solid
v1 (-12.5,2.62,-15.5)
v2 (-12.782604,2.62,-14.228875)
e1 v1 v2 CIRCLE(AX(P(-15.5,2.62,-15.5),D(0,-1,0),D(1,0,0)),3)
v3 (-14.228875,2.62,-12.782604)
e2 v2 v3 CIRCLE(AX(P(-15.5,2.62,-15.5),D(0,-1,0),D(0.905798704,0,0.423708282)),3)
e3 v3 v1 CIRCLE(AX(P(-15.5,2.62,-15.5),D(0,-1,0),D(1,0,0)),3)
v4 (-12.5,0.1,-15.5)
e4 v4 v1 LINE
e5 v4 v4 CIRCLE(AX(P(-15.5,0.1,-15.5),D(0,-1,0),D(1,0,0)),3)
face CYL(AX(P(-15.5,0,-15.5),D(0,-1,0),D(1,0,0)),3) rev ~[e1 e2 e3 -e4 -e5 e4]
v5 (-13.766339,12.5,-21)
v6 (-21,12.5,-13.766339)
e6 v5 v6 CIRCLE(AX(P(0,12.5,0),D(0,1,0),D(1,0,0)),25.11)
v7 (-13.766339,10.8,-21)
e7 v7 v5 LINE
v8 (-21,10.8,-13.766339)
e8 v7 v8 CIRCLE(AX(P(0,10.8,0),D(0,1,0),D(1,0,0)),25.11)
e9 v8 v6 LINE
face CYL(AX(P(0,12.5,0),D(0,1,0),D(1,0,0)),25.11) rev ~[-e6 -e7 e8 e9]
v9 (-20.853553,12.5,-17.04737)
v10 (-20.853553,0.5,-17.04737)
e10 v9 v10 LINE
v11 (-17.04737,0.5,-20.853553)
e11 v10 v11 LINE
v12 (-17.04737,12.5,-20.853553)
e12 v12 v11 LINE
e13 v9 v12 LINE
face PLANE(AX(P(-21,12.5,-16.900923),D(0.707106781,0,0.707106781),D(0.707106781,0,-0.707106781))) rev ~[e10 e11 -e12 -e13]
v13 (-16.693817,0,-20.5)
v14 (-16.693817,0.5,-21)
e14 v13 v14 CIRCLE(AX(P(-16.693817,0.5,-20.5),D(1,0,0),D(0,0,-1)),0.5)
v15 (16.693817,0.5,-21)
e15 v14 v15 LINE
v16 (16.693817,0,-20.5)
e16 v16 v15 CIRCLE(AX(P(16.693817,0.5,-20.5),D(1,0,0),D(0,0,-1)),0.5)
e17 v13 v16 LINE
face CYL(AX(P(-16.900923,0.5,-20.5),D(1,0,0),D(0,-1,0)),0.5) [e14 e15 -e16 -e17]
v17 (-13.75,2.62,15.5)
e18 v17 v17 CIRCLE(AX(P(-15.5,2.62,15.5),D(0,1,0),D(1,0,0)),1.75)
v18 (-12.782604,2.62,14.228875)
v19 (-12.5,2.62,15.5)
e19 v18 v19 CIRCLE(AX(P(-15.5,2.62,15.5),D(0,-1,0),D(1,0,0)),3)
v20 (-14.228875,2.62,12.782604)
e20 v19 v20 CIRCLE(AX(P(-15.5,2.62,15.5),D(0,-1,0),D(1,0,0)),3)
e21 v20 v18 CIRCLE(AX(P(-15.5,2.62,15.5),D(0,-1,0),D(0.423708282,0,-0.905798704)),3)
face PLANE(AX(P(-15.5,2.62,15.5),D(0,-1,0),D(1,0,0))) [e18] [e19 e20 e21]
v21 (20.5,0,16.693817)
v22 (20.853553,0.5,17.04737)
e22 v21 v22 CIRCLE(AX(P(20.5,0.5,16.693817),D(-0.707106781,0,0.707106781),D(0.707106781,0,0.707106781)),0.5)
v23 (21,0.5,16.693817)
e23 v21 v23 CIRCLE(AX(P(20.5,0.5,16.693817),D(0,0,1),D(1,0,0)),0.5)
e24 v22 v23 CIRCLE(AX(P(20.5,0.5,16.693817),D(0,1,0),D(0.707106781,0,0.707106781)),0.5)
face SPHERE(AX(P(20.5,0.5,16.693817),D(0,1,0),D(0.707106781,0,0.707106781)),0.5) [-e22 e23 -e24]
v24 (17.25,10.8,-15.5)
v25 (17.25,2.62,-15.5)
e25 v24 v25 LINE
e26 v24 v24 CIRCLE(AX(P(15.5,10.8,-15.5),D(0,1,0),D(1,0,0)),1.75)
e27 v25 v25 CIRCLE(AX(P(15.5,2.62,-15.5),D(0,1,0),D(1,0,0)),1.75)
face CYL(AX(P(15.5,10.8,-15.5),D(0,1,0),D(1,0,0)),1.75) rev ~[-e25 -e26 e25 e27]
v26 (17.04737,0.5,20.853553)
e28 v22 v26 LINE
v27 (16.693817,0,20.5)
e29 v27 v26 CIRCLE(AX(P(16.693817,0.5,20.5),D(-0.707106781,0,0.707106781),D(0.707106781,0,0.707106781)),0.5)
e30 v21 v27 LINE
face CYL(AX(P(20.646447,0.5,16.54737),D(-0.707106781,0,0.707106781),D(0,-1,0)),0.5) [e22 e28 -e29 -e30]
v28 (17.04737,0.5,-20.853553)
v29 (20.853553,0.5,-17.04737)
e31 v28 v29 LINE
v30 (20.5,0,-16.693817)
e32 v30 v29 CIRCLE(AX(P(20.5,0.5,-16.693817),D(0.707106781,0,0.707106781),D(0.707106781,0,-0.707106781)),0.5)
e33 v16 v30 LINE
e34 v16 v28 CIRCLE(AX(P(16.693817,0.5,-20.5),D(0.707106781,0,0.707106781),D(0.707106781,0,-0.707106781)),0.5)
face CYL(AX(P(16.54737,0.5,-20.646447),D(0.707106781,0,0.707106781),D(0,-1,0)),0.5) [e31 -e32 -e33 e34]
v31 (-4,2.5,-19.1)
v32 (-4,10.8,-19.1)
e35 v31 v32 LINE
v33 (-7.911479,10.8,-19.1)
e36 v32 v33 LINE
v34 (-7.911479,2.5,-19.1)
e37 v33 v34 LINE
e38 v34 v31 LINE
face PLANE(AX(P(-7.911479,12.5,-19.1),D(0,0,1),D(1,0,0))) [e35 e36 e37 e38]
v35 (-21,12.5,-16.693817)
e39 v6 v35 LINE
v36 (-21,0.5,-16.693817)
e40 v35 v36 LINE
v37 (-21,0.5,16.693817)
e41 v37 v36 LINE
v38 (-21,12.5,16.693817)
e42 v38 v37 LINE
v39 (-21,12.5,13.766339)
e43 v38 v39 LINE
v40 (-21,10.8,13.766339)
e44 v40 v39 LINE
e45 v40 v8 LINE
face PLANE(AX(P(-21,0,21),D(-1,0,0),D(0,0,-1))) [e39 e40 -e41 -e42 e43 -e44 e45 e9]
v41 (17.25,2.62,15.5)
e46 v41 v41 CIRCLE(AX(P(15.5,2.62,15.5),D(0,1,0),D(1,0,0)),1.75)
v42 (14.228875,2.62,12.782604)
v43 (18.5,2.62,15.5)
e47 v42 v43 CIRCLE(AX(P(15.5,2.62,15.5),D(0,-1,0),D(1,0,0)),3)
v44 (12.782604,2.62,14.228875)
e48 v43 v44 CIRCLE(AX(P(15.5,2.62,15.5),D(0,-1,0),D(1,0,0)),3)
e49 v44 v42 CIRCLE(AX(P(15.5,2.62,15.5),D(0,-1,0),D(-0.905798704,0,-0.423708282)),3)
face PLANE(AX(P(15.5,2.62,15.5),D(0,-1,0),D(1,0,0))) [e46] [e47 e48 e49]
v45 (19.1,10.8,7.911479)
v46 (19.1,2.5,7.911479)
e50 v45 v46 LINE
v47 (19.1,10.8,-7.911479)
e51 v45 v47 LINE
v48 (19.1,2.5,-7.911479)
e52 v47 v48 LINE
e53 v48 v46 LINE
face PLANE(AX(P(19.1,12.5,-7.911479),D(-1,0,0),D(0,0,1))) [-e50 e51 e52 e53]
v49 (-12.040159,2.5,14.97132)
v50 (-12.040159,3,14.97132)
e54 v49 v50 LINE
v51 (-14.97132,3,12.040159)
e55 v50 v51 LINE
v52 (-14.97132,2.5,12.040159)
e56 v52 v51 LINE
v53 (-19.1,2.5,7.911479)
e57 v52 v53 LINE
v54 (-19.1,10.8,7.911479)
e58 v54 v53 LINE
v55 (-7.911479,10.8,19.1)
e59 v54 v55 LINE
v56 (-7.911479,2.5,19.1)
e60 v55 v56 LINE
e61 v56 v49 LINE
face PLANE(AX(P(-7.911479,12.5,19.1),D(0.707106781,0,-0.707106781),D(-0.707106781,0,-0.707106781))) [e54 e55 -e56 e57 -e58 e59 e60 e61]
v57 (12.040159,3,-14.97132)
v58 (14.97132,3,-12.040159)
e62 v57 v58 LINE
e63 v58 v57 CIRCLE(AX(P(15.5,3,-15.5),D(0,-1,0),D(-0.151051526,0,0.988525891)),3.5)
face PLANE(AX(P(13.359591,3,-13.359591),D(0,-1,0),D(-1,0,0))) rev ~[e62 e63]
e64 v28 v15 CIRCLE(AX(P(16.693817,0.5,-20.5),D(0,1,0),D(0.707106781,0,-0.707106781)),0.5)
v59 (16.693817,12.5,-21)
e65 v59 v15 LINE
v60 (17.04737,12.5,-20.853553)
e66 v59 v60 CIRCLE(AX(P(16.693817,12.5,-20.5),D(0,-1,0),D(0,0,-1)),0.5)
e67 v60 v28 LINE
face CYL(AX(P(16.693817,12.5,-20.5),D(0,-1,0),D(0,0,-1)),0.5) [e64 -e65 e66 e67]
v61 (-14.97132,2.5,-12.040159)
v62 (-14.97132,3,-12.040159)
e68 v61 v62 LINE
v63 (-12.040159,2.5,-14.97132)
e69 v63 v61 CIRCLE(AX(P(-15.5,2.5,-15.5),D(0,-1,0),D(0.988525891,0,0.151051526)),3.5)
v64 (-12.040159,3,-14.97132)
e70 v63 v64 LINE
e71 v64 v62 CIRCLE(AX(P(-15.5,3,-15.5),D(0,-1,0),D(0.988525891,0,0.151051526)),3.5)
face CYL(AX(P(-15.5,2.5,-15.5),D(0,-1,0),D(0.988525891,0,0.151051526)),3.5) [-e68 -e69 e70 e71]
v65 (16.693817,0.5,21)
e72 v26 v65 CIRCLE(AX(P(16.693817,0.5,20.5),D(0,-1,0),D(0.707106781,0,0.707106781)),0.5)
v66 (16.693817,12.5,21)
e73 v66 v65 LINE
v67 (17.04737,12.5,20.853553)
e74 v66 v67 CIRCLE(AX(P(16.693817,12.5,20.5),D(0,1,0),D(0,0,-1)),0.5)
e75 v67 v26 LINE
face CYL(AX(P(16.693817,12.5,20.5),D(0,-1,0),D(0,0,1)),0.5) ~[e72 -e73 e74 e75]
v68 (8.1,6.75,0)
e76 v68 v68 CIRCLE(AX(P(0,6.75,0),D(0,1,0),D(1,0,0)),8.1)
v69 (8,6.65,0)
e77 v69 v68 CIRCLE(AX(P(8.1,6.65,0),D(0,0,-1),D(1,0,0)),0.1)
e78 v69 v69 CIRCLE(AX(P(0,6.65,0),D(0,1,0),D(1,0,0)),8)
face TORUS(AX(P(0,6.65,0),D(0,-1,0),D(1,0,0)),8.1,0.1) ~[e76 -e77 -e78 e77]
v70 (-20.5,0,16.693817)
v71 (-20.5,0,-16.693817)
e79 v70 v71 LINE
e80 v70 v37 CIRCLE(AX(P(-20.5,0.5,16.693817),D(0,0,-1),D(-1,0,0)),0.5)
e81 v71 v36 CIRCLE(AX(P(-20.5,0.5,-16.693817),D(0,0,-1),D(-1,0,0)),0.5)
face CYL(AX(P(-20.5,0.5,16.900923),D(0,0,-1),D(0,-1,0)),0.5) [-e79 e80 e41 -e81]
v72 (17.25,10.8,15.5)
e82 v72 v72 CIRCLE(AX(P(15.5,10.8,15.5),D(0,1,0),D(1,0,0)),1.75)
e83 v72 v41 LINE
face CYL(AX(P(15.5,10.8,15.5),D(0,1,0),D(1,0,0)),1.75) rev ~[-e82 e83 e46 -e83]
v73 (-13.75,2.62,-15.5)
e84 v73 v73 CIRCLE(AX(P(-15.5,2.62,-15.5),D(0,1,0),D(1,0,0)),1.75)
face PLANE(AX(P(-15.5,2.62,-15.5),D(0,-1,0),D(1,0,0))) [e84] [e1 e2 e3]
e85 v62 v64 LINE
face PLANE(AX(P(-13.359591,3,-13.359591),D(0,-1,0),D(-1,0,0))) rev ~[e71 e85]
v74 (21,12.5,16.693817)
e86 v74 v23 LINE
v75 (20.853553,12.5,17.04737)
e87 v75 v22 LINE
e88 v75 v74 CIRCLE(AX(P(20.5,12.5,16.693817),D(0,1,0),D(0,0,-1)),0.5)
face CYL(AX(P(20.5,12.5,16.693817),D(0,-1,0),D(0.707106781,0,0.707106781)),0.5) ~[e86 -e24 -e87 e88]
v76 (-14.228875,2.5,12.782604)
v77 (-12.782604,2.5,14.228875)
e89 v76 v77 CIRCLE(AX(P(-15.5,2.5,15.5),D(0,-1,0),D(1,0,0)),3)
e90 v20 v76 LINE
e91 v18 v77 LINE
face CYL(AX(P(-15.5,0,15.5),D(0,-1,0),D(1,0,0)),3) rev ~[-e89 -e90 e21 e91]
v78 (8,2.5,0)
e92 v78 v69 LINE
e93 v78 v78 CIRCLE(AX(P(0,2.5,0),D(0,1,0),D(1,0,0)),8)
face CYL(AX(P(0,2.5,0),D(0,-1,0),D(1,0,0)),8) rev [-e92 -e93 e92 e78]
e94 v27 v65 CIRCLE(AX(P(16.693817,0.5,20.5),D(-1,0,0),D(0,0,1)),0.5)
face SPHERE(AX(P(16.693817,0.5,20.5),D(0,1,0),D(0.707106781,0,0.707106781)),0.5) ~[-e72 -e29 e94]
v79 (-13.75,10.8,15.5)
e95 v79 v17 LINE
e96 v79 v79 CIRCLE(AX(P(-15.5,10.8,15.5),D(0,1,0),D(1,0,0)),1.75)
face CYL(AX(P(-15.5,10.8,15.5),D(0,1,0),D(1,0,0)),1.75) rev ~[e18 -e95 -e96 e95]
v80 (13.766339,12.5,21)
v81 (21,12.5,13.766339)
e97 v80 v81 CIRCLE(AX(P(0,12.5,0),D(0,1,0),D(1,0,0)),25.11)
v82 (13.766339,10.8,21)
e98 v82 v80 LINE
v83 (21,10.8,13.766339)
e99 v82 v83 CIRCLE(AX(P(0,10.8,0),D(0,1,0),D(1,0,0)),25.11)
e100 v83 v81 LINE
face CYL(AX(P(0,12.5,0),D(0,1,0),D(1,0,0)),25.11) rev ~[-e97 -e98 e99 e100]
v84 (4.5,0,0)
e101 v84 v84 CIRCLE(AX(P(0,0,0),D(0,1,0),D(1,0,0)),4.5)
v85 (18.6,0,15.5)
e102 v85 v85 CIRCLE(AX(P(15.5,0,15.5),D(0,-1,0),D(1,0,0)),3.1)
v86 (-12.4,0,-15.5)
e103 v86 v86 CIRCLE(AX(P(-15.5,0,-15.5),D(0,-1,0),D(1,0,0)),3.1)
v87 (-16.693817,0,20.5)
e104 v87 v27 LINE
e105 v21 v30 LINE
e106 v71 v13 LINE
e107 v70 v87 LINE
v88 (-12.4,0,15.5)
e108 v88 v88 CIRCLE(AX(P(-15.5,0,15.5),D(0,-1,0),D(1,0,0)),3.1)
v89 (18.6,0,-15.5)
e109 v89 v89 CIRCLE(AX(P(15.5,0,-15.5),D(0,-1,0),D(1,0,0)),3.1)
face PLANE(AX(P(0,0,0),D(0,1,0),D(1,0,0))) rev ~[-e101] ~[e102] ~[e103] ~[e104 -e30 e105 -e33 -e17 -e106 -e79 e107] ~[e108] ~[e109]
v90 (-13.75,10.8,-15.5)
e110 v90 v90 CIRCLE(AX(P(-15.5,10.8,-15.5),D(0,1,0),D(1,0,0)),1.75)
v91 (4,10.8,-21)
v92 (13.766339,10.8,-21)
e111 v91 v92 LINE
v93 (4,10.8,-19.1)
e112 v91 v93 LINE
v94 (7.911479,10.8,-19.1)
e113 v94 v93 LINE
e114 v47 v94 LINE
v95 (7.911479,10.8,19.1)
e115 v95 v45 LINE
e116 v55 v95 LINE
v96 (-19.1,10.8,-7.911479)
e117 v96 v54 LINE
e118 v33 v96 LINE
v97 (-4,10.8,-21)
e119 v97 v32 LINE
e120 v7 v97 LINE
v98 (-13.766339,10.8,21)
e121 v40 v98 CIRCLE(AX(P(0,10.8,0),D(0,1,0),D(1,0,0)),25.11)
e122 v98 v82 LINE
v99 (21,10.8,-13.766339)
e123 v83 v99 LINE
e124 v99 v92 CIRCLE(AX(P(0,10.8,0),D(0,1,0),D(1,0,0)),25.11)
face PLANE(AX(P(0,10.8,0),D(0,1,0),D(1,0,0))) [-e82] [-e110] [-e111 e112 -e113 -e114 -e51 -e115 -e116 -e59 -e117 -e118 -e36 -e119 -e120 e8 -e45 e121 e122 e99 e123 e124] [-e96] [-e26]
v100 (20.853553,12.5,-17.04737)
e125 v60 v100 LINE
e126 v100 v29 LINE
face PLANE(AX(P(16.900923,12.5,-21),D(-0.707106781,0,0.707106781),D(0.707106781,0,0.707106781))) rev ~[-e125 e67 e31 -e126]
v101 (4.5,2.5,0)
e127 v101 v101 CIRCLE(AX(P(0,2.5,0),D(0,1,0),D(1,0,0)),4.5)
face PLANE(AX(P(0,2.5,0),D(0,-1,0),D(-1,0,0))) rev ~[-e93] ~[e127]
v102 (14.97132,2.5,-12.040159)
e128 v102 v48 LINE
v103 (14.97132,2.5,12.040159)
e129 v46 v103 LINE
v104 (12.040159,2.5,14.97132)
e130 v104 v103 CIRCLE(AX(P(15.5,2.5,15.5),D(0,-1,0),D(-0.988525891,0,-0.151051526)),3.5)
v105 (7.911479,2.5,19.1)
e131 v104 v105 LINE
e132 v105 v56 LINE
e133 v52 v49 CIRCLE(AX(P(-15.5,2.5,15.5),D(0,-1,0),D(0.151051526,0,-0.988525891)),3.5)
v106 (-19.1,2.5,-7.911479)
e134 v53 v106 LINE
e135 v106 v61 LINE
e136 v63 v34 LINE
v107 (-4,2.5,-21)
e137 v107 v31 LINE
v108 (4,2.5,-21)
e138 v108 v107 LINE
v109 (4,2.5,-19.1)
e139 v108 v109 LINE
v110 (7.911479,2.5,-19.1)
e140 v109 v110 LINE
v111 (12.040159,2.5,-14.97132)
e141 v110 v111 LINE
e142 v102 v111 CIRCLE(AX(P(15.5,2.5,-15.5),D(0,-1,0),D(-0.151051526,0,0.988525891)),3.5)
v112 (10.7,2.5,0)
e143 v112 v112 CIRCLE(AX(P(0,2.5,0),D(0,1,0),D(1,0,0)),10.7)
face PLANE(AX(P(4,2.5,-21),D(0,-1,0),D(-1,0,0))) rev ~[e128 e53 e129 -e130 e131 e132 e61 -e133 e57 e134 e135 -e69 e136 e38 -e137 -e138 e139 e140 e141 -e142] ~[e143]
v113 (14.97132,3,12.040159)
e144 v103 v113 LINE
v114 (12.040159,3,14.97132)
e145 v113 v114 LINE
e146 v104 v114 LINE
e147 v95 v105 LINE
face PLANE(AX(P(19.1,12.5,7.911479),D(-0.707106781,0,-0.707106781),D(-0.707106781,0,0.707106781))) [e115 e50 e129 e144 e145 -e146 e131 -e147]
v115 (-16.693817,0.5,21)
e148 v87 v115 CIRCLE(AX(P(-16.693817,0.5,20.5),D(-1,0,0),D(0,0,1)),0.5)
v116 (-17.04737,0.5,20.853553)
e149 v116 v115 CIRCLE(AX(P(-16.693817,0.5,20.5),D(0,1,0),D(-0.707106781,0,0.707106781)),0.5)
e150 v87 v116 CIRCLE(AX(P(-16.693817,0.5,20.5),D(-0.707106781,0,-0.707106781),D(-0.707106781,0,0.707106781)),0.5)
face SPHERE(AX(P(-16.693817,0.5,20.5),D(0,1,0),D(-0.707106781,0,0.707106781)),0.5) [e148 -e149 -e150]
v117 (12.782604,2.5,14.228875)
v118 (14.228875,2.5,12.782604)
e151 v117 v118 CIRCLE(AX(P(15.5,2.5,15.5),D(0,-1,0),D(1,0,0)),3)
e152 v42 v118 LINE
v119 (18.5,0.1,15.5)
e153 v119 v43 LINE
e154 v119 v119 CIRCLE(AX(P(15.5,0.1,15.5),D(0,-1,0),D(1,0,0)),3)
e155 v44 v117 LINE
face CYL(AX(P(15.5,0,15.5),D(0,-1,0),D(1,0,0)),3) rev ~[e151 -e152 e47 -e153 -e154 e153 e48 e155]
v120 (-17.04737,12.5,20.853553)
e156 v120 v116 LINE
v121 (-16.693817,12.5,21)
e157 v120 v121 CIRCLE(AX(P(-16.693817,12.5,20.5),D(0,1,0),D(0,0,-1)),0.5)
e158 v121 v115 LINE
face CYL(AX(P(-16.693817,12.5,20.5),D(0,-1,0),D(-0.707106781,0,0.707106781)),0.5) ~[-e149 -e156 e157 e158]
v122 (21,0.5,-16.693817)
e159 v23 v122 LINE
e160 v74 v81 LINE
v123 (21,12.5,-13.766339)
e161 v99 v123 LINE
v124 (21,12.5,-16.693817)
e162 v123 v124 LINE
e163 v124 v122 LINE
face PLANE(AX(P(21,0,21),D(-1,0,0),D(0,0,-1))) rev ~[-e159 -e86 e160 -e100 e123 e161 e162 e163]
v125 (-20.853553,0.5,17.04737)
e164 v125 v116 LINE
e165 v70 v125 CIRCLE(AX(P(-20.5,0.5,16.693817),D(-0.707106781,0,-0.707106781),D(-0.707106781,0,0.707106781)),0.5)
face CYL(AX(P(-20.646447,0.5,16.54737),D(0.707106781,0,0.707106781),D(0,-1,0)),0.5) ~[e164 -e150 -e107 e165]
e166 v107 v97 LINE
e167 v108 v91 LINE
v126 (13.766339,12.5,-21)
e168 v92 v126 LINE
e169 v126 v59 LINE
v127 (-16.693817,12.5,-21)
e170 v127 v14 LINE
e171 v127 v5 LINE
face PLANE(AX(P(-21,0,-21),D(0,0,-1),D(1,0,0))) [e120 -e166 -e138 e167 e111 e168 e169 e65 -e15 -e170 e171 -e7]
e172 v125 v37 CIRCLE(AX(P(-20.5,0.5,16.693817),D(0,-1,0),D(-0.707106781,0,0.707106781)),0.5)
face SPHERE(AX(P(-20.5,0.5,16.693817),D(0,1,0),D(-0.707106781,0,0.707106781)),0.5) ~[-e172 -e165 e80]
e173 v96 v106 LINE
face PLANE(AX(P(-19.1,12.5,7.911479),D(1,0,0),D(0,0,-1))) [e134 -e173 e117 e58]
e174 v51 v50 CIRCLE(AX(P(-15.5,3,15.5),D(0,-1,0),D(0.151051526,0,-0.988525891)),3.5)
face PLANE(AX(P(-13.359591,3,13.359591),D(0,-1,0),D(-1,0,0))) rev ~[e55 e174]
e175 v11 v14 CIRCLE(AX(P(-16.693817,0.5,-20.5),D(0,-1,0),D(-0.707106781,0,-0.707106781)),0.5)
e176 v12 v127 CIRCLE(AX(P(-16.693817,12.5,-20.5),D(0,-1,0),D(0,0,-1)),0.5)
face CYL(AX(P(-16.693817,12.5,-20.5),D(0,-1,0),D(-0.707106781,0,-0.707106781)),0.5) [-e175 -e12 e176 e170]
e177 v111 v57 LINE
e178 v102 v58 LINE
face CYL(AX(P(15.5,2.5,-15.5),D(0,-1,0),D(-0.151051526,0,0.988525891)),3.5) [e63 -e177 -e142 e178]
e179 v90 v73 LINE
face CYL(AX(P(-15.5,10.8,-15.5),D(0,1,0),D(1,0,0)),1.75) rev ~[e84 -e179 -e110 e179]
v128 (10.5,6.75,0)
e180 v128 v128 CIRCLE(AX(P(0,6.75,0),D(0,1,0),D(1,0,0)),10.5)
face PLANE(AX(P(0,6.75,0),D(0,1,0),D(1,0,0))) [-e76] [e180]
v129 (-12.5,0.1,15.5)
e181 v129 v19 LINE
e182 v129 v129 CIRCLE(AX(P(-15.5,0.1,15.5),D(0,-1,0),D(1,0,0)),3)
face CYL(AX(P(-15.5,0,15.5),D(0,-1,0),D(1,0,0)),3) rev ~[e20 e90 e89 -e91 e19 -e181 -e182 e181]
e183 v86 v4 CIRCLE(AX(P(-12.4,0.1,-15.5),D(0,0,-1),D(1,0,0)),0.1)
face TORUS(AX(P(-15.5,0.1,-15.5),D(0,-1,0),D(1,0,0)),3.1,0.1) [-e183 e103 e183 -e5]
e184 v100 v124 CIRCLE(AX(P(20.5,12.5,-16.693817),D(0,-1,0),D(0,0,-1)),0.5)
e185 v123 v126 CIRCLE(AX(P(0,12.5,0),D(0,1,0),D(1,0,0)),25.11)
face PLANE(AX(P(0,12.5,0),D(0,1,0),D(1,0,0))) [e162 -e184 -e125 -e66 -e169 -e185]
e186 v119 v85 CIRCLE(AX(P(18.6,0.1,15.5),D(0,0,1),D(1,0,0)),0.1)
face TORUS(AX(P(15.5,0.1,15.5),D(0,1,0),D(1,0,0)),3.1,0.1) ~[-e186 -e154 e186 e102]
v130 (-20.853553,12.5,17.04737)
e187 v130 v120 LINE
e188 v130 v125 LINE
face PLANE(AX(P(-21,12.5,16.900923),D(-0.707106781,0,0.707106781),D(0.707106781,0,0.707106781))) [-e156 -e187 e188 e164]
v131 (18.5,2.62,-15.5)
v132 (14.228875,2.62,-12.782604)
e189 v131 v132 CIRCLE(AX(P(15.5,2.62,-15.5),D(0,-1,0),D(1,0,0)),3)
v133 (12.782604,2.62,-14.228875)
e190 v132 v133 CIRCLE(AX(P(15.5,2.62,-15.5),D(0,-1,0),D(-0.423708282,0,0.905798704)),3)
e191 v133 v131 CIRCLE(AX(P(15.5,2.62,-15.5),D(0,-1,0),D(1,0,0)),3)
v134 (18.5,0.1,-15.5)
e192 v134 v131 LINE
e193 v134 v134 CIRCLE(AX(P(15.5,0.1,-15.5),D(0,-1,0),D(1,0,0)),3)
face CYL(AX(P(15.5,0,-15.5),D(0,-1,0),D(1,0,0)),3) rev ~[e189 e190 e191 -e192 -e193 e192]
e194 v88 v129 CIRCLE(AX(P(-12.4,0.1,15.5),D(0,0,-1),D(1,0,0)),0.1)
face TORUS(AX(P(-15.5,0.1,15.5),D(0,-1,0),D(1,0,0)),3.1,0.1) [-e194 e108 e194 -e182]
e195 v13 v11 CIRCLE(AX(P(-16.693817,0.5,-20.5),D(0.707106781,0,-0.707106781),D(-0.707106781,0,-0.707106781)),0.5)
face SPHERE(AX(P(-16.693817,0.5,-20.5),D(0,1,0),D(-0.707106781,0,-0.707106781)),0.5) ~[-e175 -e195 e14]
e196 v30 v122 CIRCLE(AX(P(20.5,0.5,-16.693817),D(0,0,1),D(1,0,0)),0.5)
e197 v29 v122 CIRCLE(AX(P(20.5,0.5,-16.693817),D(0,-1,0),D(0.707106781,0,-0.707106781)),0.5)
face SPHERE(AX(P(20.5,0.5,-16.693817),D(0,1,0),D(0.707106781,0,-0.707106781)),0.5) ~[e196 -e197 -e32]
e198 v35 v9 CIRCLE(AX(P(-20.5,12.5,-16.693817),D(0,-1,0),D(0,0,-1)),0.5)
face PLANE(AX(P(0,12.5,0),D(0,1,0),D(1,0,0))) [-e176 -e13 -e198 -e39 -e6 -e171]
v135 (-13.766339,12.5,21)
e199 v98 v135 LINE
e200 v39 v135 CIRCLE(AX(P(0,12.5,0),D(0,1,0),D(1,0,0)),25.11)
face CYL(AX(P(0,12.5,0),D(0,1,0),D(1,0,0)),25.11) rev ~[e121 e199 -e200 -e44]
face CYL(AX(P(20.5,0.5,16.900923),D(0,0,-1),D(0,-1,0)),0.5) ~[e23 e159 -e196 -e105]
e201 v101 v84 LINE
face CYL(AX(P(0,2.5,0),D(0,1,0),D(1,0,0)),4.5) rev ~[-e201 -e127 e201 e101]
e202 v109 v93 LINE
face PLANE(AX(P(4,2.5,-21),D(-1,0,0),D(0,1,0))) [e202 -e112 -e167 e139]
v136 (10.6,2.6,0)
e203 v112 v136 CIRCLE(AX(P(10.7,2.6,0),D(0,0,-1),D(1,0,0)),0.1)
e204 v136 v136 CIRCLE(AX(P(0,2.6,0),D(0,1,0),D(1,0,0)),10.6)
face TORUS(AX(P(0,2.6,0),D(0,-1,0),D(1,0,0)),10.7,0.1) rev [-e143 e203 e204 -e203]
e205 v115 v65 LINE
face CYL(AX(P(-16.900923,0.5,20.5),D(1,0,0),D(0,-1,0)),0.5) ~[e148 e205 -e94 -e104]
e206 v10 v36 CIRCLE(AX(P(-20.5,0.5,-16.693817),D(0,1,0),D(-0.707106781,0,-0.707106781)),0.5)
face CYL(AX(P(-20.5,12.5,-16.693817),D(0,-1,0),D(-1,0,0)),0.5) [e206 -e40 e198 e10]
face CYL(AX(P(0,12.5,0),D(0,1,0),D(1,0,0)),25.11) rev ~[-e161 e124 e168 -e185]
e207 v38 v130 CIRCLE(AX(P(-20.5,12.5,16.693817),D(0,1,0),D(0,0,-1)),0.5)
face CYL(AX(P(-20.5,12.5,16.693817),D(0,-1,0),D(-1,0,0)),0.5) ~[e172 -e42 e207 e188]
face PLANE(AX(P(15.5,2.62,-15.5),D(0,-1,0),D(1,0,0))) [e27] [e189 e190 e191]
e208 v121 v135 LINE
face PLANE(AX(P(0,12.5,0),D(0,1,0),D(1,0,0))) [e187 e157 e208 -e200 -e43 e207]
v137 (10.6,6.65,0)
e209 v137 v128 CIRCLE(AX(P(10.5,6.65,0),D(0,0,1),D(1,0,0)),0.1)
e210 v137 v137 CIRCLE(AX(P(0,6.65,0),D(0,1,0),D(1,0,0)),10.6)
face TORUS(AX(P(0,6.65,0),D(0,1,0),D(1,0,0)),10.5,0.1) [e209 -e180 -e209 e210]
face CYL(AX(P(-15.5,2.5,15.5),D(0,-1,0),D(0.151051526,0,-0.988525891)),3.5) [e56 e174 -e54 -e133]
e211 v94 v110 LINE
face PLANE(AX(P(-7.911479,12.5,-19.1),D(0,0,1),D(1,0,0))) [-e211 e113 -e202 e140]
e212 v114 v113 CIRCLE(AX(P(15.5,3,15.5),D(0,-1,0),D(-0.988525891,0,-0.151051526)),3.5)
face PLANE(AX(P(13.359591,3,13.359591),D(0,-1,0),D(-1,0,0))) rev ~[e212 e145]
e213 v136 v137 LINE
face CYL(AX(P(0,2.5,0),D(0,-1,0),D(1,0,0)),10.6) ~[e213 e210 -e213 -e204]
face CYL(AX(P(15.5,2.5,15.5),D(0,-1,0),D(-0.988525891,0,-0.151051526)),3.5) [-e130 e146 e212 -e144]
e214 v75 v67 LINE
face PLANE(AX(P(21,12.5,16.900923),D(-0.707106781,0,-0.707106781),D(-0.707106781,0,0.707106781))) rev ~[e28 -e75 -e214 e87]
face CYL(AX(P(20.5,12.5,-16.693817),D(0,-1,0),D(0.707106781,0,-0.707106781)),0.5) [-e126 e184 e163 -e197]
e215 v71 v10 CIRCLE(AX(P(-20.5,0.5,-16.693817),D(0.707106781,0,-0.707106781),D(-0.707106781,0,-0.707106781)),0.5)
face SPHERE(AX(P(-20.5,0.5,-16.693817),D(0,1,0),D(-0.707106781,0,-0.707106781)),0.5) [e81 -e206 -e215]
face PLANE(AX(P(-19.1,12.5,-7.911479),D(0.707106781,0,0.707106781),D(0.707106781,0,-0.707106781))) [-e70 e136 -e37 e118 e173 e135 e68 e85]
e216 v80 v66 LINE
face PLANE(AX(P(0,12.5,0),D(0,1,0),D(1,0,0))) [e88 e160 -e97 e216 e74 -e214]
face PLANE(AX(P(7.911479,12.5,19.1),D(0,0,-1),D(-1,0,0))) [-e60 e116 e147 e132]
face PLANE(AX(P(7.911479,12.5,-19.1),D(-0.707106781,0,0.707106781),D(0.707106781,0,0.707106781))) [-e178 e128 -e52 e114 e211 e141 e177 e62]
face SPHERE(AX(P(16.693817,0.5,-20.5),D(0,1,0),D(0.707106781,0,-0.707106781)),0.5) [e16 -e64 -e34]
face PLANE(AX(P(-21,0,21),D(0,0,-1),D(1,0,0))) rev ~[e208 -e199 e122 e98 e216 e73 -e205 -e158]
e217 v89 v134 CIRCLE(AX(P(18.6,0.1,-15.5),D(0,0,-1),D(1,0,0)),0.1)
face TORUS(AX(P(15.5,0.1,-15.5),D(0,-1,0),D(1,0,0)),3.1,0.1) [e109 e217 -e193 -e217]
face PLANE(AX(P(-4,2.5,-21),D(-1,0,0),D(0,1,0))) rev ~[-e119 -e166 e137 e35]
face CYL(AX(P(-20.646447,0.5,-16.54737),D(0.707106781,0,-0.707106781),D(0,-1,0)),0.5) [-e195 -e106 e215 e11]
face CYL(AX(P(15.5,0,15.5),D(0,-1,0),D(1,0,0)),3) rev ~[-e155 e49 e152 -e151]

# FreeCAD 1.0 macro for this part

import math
import FreeCAD as App
import Part
import Sketcher
from FreeCAD import Vector


def edges_at(feature, points):
    """Names of the edges that pass closest to the given points."""
    edges = feature.Shape.Edges
    near = lambda p: min(range(len(edges)), key=lambda i: edges[i].distToShape(Part.Vertex(*p))[0])
    return sorted({f"Edge{near(p) + 1}" for p in points})

doc = App.newDocument("Part")
body = doc.addObject("PartDesign::Body", "Body")

# Sketch on XZ plane
sketch1 = doc.addObject("Sketcher::SketchObject", "Sketch")
body.addObject(sketch1)
sketch1.AttachmentSupport = (doc.XZ_Plane, [""])
sketch1.MapMode = "FlatFace"
sketch1.addGeometry(Part.LineSegment(Vector(-21, -21, 0), Vector(-21, 21, 0)), False)
sketch1.addGeometry(Part.LineSegment(Vector(-21, 21, 0), Vector(21, 21, 0)), False)
sketch1.addGeometry(Part.LineSegment(Vector(21, 21, 0), Vector(21, -21, 0)), False)
sketch1.addGeometry(Part.LineSegment(Vector(21, -21, 0), Vector(-21, -21, 0)), False)
sketch1.addConstraint(Sketcher.Constraint("Coincident", 0, 2, 1, 1))
sketch1.addConstraint(Sketcher.Constraint("Coincident", 1, 2, 2, 1))
sketch1.addConstraint(Sketcher.Constraint("Coincident", 2, 2, 3, 1))
sketch1.addConstraint(Sketcher.Constraint("Coincident", 3, 2, 0, 1))
sketch1.addConstraint(Sketcher.Constraint("Vertical", 0))
sketch1.addConstraint(Sketcher.Constraint("Horizontal", 1))
sketch1.addConstraint(Sketcher.Constraint("Vertical", 2))
sketch1.addConstraint(Sketcher.Constraint("Horizontal", 3))
sketch1.addConstraint(Sketcher.Constraint("Symmetric", 0, 2, 2, 2, -1, 1))
sketch1.addConstraint(Sketcher.Constraint("Equal", 3, 0))
sketch1.addConstraint(Sketcher.Constraint("DistanceX", 1, 1, 1, 2, 42.0))
pad1 = doc.addObject("PartDesign::Pad", "Pad")
body.addObject(pad1)
pad1.Profile = sketch1
pad1.Length = 12.5
pad1.Reversed = True

# Sketch on XZ plane
sketch2 = doc.addObject("Sketcher::SketchObject", "Sketch001")
body.addObject(sketch2)
sketch2.AttachmentSupport = (doc.XZ_Plane, [""])
sketch2.MapMode = "FlatFace"
sketch2.AttachmentOffset = App.Placement(Vector(0, 0, -12.5), App.Rotation())
sketch2.addGeometry(Part.LineSegment(Vector(-21, -21, 0), Vector(-21, -16.9, 0)), False)
sketch2.addGeometry(Part.LineSegment(Vector(-21, -16.9, 0), Vector(-16.9, -21, 0)), False)
sketch2.addGeometry(Part.LineSegment(Vector(-16.9, -21, 0), Vector(-21, -21, 0)), False)
sketch2.addGeometry(Part.LineSegment(Vector(21, -21, 0), Vector(16.9, -21, 0)), False)
sketch2.addGeometry(Part.LineSegment(Vector(16.9, -21, 0), Vector(21, -16.9, 0)), False)
sketch2.addGeometry(Part.LineSegment(Vector(21, -16.9, 0), Vector(21, -21, 0)), False)
sketch2.addGeometry(Part.LineSegment(Vector(-21, 16.9, 0), Vector(-21, 21, 0)), False)
sketch2.addGeometry(Part.LineSegment(Vector(-21, 21, 0), Vector(-16.9, 21, 0)), False)
sketch2.addGeometry(Part.LineSegment(Vector(-16.9, 21, 0), Vector(-21, 16.9, 0)), False)
sketch2.addGeometry(Part.LineSegment(Vector(21, 21, 0), Vector(21, 16.9, 0)), False)
sketch2.addGeometry(Part.LineSegment(Vector(21, 16.9, 0), Vector(16.9, 21, 0)), False)
sketch2.addGeometry(Part.LineSegment(Vector(16.9, 21, 0), Vector(21, 21, 0)), False)
sketch2.addConstraint(Sketcher.Constraint("Coincident", 0, 2, 1, 1))
sketch2.addConstraint(Sketcher.Constraint("Coincident", 1, 2, 2, 1))
sketch2.addConstraint(Sketcher.Constraint("Coincident", 2, 2, 0, 1))
sketch2.addConstraint(Sketcher.Constraint("Coincident", 3, 2, 4, 1))
sketch2.addConstraint(Sketcher.Constraint("Coincident", 4, 2, 5, 1))
sketch2.addConstraint(Sketcher.Constraint("Coincident", 5, 2, 3, 1))
sketch2.addConstraint(Sketcher.Constraint("Coincident", 6, 2, 7, 1))
sketch2.addConstraint(Sketcher.Constraint("Coincident", 7, 2, 8, 1))
sketch2.addConstraint(Sketcher.Constraint("Coincident", 8, 2, 6, 1))
sketch2.addConstraint(Sketcher.Constraint("Coincident", 9, 2, 10, 1))
sketch2.addConstraint(Sketcher.Constraint("Coincident", 10, 2, 11, 1))
sketch2.addConstraint(Sketcher.Constraint("Coincident", 11, 2, 9, 1))
sketch2.addConstraint(Sketcher.Constraint("Vertical", 0))
sketch2.addConstraint(Sketcher.Constraint("Horizontal", 2))
sketch2.addConstraint(Sketcher.Constraint("Horizontal", 3))
sketch2.addConstraint(Sketcher.Constraint("Vertical", 5))
sketch2.addConstraint(Sketcher.Constraint("Vertical", 6))
sketch2.addConstraint(Sketcher.Constraint("Horizontal", 7))
sketch2.addConstraint(Sketcher.Constraint("Vertical", 9))
sketch2.addConstraint(Sketcher.Constraint("Horizontal", 11))
sketch2.addConstraint(Sketcher.Constraint("Symmetric", 5, 2, 6, 2, -1, 1))
sketch2.addConstraint(Sketcher.Constraint("Symmetric", 0, 2, 9, 2, -1, 1))
sketch2.addConstraint(Sketcher.Constraint("Symmetric", 1, 2, 10, 2, -1, 1))
sketch2.addConstraint(Sketcher.Constraint("Symmetric", 1, 2, 3, 2, -2))
sketch2.addConstraint(Sketcher.Constraint("Symmetric", 0, 2, 4, 2, -2))
sketch2.addConstraint(Sketcher.Constraint("Perpendicular", 1, 4))
sketch2.addConstraint(Sketcher.Constraint("Parallel", 4, 8))
sketch2.addConstraint(Sketcher.Constraint("Horizontal", 8, 2, 9, 2))
sketch2.addConstraint(Sketcher.Constraint("DistanceX", 0, 2, -1, 1, 21.0))
sketch2.addConstraint(Sketcher.Constraint("DistanceY", 1, 2, -1, 1, 21.0))
sketch2.addConstraint(Sketcher.Constraint("Distance", 1, 5.79697))
pocket1 = doc.addObject("PartDesign::Pocket", "Pocket")
body.addObject(pocket1)
pocket1.Profile = sketch2
pocket1.Length = 12.5
pocket1.Reversed = True

# Sketch on XZ plane
sketch3 = doc.addObject("Sketcher::SketchObject", "Sketch002")
body.addObject(sketch3)
sketch3.AttachmentSupport = (doc.XZ_Plane, [""])
sketch3.MapMode = "FlatFace"
sketch3.AttachmentOffset = App.Placement(Vector(0, 0, -12.5), App.Rotation())
sketch3.addGeometry(Part.LineSegment(Vector(8, -19, 0), Vector(-8, -19, 0)), False)
sketch3.addGeometry(Part.LineSegment(Vector(-8, -19, 0), Vector(-19, -8, 0)), False)
sketch3.addGeometry(Part.LineSegment(Vector(-19, -8, 0), Vector(-19, 8, 0)), False)
sketch3.addGeometry(Part.LineSegment(Vector(-19, 8, 0), Vector(-8, 19, 0)), False)
sketch3.addGeometry(Part.LineSegment(Vector(-8, 19, 0), Vector(8, 19, 0)), False)
sketch3.addGeometry(Part.LineSegment(Vector(8, 19, 0), Vector(19, 8, 0)), False)
sketch3.addGeometry(Part.LineSegment(Vector(19, 8, 0), Vector(19, -8, 0)), False)
sketch3.addGeometry(Part.LineSegment(Vector(19, -8, 0), Vector(8, -19, 0)), False)
sketch3.addConstraint(Sketcher.Constraint("Coincident", 0, 2, 1, 1))
sketch3.addConstraint(Sketcher.Constraint("Coincident", 1, 2, 2, 1))
sketch3.addConstraint(Sketcher.Constraint("Coincident", 2, 2, 3, 1))
sketch3.addConstraint(Sketcher.Constraint("Coincident", 3, 2, 4, 1))
sketch3.addConstraint(Sketcher.Constraint("Coincident", 4, 2, 5, 1))
sketch3.addConstraint(Sketcher.Constraint("Coincident", 5, 2, 6, 1))
sketch3.addConstraint(Sketcher.Constraint("Coincident", 6, 2, 7, 1))
sketch3.addConstraint(Sketcher.Constraint("Coincident", 7, 2, 0, 1))
sketch3.addConstraint(Sketcher.Constraint("Horizontal", 0))
sketch3.addConstraint(Sketcher.Constraint("Vertical", 2))
sketch3.addConstraint(Sketcher.Constraint("Horizontal", 4))
sketch3.addConstraint(Sketcher.Constraint("Vertical", 6))
sketch3.addConstraint(Sketcher.Constraint("Symmetric", 0, 2, 4, 2, -1, 1))
sketch3.addConstraint(Sketcher.Constraint("Symmetric", 1, 2, 5, 2, -1, 1))
sketch3.addConstraint(Sketcher.Constraint("Perpendicular", 1, 3))
sketch3.addConstraint(Sketcher.Constraint("Perpendicular", 5, 7))
sketch3.addConstraint(Sketcher.Constraint("Horizontal", 2, 2, 5, 2))
sketch3.addConstraint(Sketcher.Constraint("Horizontal", 1, 2, 6, 2))
sketch3.addConstraint(Sketcher.Constraint("Vertical", 0, 2, 3, 2))
sketch3.addConstraint(Sketcher.Constraint("Equal", 4, 2))
sketch3.addConstraint(Sketcher.Constraint("DistanceY", 0, 2, -1, 1, 19.1))
sketch3.addConstraint(Sketcher.Constraint("DistanceX", 0, 2, 0, 1, 15.822958))
pocket2 = doc.addObject("PartDesign::Pocket", "Pocket001")
body.addObject(pocket2)
pocket2.Profile = sketch3
pocket2.Length = 10
pocket2.Reversed = True

# Sketch on XZ plane
sketch4 = doc.addObject("Sketcher::SketchObject", "Sketch003")
body.addObject(sketch4)
sketch4.AttachmentSupport = (doc.XZ_Plane, [""])
sketch4.MapMode = "FlatFace"
sketch4.AttachmentOffset = App.Placement(Vector(0, 0, -12.5), App.Rotation())
sketch4.addGeometry(Part.Circle(Vector(0, 0, 0), Vector(0, 0, 1), 25), False)
sketch4.addConstraint(Sketcher.Constraint("Coincident", 0, 3, -1, 1))
sketch4.addConstraint(Sketcher.Constraint("Diameter", 0, 50.22))
pocket3 = doc.addObject("PartDesign::Pocket", "Pocket002")
body.addObject(pocket3)
pocket3.Profile = sketch4
pocket3.Length = 1.7
pocket3.Reversed = True

# Sketch on XZ plane
sketch5 = doc.addObject("Sketcher::SketchObject", "Sketch004")
body.addObject(sketch5)
sketch5.AttachmentSupport = (doc.XZ_Plane, [""])
sketch5.MapMode = "FlatFace"
sketch5.AttachmentOffset = App.Placement(Vector(0, 0, -2.5), App.Rotation())
sketch5.addGeometry(Part.Circle(Vector(0, 0, 0), Vector(0, 0, 1), 11), False)
sketch5.addGeometry(Part.Circle(Vector(0, 0, 0), Vector(0, 0, 1), 8), False)
sketch5.addConstraint(Sketcher.Constraint("Coincident", 0, 3, -1, 1))
sketch5.addConstraint(Sketcher.Constraint("Coincident", 1, 3, -1, 1))
sketch5.addConstraint(Sketcher.Constraint("Diameter", 1, 16.0))
sketch5.addConstraint(Sketcher.Constraint("Diameter", 0, 21.2))
pad2 = doc.addObject("PartDesign::Pad", "Pad001")
body.addObject(pad2)
pad2.Profile = sketch5
pad2.Length = 4.25
pad2.Reversed = True

# Sketch on XZ plane
sketch6 = doc.addObject("Sketcher::SketchObject", "Sketch005")
body.addObject(sketch6)
sketch6.AttachmentSupport = (doc.XZ_Plane, [""])
sketch6.MapMode = "FlatFace"
sketch6.AttachmentOffset = App.Placement(Vector(0, 0, -2.5), App.Rotation())
sketch6.addGeometry(Part.Circle(Vector(0, 0, 0), Vector(0, 0, 1), 4.5), False)
sketch6.addConstraint(Sketcher.Constraint("Coincident", 0, 3, -1, 1))
sketch6.addConstraint(Sketcher.Constraint("Diameter", 0, 9.0))
pocket4 = doc.addObject("PartDesign::Pocket", "Pocket003")
body.addObject(pocket4)
pocket4.Profile = sketch6
pocket4.Length = 2.5
pocket4.Reversed = True

# Sketch on XZ plane
sketch7 = doc.addObject("Sketcher::SketchObject", "Sketch006")
body.addObject(sketch7)
sketch7.AttachmentSupport = (doc.XZ_Plane, [""])
sketch7.MapMode = "FlatFace"
sketch7.AttachmentOffset = App.Placement(Vector(0, 0, -10.8), App.Rotation())
sketch7.addGeometry(Part.Circle(Vector(-15.5, -15.5, 0), Vector(0, 0, 1), 1.8), False)
sketch7.addGeometry(Part.Circle(Vector(15.5, -15.5, 0), Vector(0, 0, 1), 1.8), False)
sketch7.addGeometry(Part.Circle(Vector(-15.5, 15.5, 0), Vector(0, 0, 1), 1.8), False)
sketch7.addGeometry(Part.Circle(Vector(15.5, 15.5, 0), Vector(0, 0, 1), 1.8), False)
sketch7.addConstraint(Sketcher.Constraint("Equal", 0, 1))
sketch7.addConstraint(Sketcher.Constraint("Equal", 1, 2))
sketch7.addConstraint(Sketcher.Constraint("Equal", 2, 3))
sketch7.addConstraint(Sketcher.Constraint("Symmetric", 1, 3, 2, 3, -1, 1))
sketch7.addConstraint(Sketcher.Constraint("Symmetric", 0, 3, 3, 3, -1, 1))
sketch7.addConstraint(Sketcher.Constraint("Symmetric", 0, 3, 1, 3, -2))
sketch7.addConstraint(Sketcher.Constraint("Diameter", 0, 3.5))
sketch7.addConstraint(Sketcher.Constraint("DistanceX", 0, 3, 1, 3, 31.0))
sketch7.addConstraint(Sketcher.Constraint("DistanceY", 0, 3, 2, 3, 31.0))
pocket5 = doc.addObject("PartDesign::Pocket", "Pocket004")
body.addObject(pocket5)
pocket5.Profile = sketch7
pocket5.Length = 10.8
pocket5.Reversed = True

# Sketch on XZ plane
sketch8 = doc.addObject("Sketcher::SketchObject", "Sketch007")
body.addObject(sketch8)
sketch8.AttachmentSupport = (doc.XZ_Plane, [""])
sketch8.MapMode = "FlatFace"
sketch8.addGeometry(Part.Circle(Vector(-15.5, 15.5, 0), Vector(0, 0, 1), 3), False)
sketch8.addGeometry(Part.Circle(Vector(15.5, 15.5, 0), Vector(0, 0, 1), 3), False)
sketch8.addGeometry(Part.Circle(Vector(15.5, -15.5, 0), Vector(0, 0, 1), 3), False)
sketch8.addGeometry(Part.Circle(Vector(-15.5, -15.5, 0), Vector(0, 0, 1), 3), False)
sketch8.addConstraint(Sketcher.Constraint("Equal", 0, 1))
sketch8.addConstraint(Sketcher.Constraint("Equal", 1, 2))
sketch8.addConstraint(Sketcher.Constraint("Equal", 2, 3))
sketch8.addConstraint(Sketcher.Constraint("Symmetric", 0, 3, 2, 3, -1, 1))
sketch8.addConstraint(Sketcher.Constraint("Symmetric", 1, 3, 3, 3, -1, 1))
sketch8.addConstraint(Sketcher.Constraint("Symmetric", 0, 3, 1, 3, -2))
sketch8.addConstraint(Sketcher.Constraint("Diameter", 0, 6.0))
sketch8.addConstraint(Sketcher.Constraint("DistanceX", 0, 3, 1, 3, 31.0))
sketch8.addConstraint(Sketcher.Constraint("DistanceY", 2, 3, 1, 3, 31.0))
pocket6 = doc.addObject("PartDesign::Pocket", "Pocket005")
body.addObject(pocket6)
pocket6.Profile = sketch8
pocket6.Length = 2.62

# Sketch on XZ plane
sketch9 = doc.addObject("Sketcher::SketchObject", "Sketch008")
body.addObject(sketch9)
sketch9.AttachmentSupport = (doc.XZ_Plane, [""])
sketch9.MapMode = "FlatFace"
sketch9.AttachmentOffset = App.Placement(Vector(0, 0, -2.5), App.Rotation())
sketch9.addGeometry(Part.LineSegment(Vector(12, 15, 0), Vector(15, 12, 0)), False)
sketch9.addGeometry(Part.ArcOfCircle(Part.Circle(Vector(15.5, 15.5, 0), Vector(0, 0, 1), 3.5), math.radians(-171), math.radians(-99)), False)
sketch9.addGeometry(Part.LineSegment(Vector(-15, 12, 0), Vector(-12, 15, 0)), False)
sketch9.addGeometry(Part.ArcOfCircle(Part.Circle(Vector(-15.5, 15.5, 0), Vector(0, 0, 1), 3.5), math.radians(-81), math.radians(-9)), False)
sketch9.addGeometry(Part.LineSegment(Vector(-12, -15, 0), Vector(-15, -12, 0)), False)
sketch9.addGeometry(Part.ArcOfCircle(Part.Circle(Vector(-15.5, -15.5, 0), Vector(0, 0, 1), 3.5), math.radians(9), math.radians(81)), False)
sketch9.addGeometry(Part.LineSegment(Vector(15, -12, 0), Vector(12, -15, 0)), False)
sketch9.addGeometry(Part.ArcOfCircle(Part.Circle(Vector(15.5, -15.5, 0), Vector(0, 0, 1), 3.5), math.radians(99), math.radians(171)), False)
sketch9.addConstraint(Sketcher.Constraint("Coincident", 0, 1, 1, 1))
sketch9.addConstraint(Sketcher.Constraint("Coincident", 1, 2, 0, 2))
sketch9.addConstraint(Sketcher.Constraint("Coincident", 2, 1, 3, 1))
sketch9.addConstraint(Sketcher.Constraint("Coincident", 3, 2, 2, 2))
sketch9.addConstraint(Sketcher.Constraint("Coincident", 4, 1, 5, 1))
sketch9.addConstraint(Sketcher.Constraint("Coincident", 5, 2, 4, 2))
sketch9.addConstraint(Sketcher.Constraint("Coincident", 6, 1, 7, 1))
sketch9.addConstraint(Sketcher.Constraint("Coincident", 7, 2, 6, 2))
sketch9.addConstraint(Sketcher.Constraint("Equal", 1, 3))
sketch9.addConstraint(Sketcher.Constraint("Equal", 3, 5))
sketch9.addConstraint(Sketcher.Constraint("Equal", 5, 7))
sketch9.addConstraint(Sketcher.Constraint("Symmetric", 1, 3, 5, 3, -1, 1))
sketch9.addConstraint(Sketcher.Constraint("Symmetric", 3, 3, 7, 3, -1, 1))
sketch9.addConstraint(Sketcher.Constraint("Symmetric", 1, 3, 3, 3, -2))
sketch9.addConstraint(Sketcher.Constraint("Perpendicular", 0, 2))
sketch9.addConstraint(Sketcher.Constraint("Perpendicular", 2, 4))
sketch9.addConstraint(Sketcher.Constraint("Perpendicular", 4, 6))
sketch9.addConstraint(Sketcher.Constraint("Horizontal", 1, 2, 2, 1))
sketch9.addConstraint(Sketcher.Constraint("Horizontal", 0, 1, 3, 2))
sketch9.addConstraint(Sketcher.Constraint("Horizontal", 5, 2, 6, 1))
sketch9.addConstraint(Sketcher.Constraint("Vertical", 3, 2, 4, 1))
sketch9.addConstraint(Sketcher.Constraint("Radius", 1, 3.5))
sketch9.addConstraint(Sketcher.Constraint("DistanceX", 3, 3, 1, 3, 31.0))
sketch9.addConstraint(Sketcher.Constraint("DistanceY", 5, 3, 3, 3, 31.0))
sketch9.addConstraint(Sketcher.Constraint("DistanceX", -1, 1, 0, 1, 12.040159))
pad3 = doc.addObject("PartDesign::Pad", "Pad002")
body.addObject(pad3)
pad3.Profile = sketch9
pad3.Length = 0.5
pad3.Reversed = True

# Sketch on XZ plane
sketch10 = doc.addObject("Sketcher::SketchObject", "Sketch009")
body.addObject(sketch10)
sketch10.AttachmentSupport = (doc.XZ_Plane, [""])
sketch10.MapMode = "FlatFace"
sketch10.AttachmentOffset = App.Placement(Vector(0, 0, -2.5), App.Rotation())
sketch10.addGeometry(Part.LineSegment(Vector(-14.2, -12.8, 0), Vector(-12.8, -14.2, 0)), False)
sketch10.addGeometry(Part.ArcOfCircle(Part.Circle(Vector(-15.5, -15.5, 0), Vector(0, 0, 1), 3), math.radians(25), math.radians(65)), False)
sketch10.addGeometry(Part.LineSegment(Vector(-12.8, 14.2, 0), Vector(-14.2, 12.8, 0)), False)
sketch10.addGeometry(Part.ArcOfCircle(Part.Circle(Vector(-15.5, 15.5, 0), Vector(0, 0, 1), 3), math.radians(-65), math.radians(-25)), False)
sketch10.addGeometry(Part.LineSegment(Vector(14.2, 12.8, 0), Vector(12.8, 14.2, 0)), False)
sketch10.addGeometry(Part.ArcOfCircle(Part.Circle(Vector(15.5, 15.5, 0), Vector(0, 0, 1), 3), math.radians(-155), math.radians(-115)), False)
sketch10.addGeometry(Part.LineSegment(Vector(12.8, -14.2, 0), Vector(14.2, -12.8, 0)), False)
sketch10.addGeometry(Part.ArcOfCircle(Part.Circle(Vector(15.5, -15.5, 0), Vector(0, 0, 1), 3), math.radians(115), math.radians(155)), False)
sketch10.addConstraint(Sketcher.Constraint("Coincident", 0, 1, 1, 2))
sketch10.addConstraint(Sketcher.Constraint("Coincident", 1, 1, 0, 2))
sketch10.addConstraint(Sketcher.Constraint("Coincident", 2, 1, 3, 2))
sketch10.addConstraint(Sketcher.Constraint("Coincident", 3, 1, 2, 2))
sketch10.addConstraint(Sketcher.Constraint("Coincident", 4, 1, 5, 2))
sketch10.addConstraint(Sketcher.Constraint("Coincident", 5, 1, 4, 2))
sketch10.addConstraint(Sketcher.Constraint("Coincident", 6, 1, 7, 2))
sketch10.addConstraint(Sketcher.Constraint("Coincident", 7, 1, 6, 2))
sketch10.addConstraint(Sketcher.Constraint("Equal", 1, 3))
sketch10.addConstraint(Sketcher.Constraint("Equal", 3, 5))
sketch10.addConstraint(Sketcher.Constraint("Equal", 5, 7))
sketch10.addConstraint(Sketcher.Constraint("Symmetric", 1, 3, 5, 3, -1, 1))
sketch10.addConstraint(Sketcher.Constraint("Symmetric", 3, 3, 7, 3, -1, 1))
sketch10.addConstraint(Sketcher.Constraint("Symmetric", 3, 3, 5, 3, -2))
sketch10.addConstraint(Sketcher.Constraint("Perpendicular", 0, 2))
sketch10.addConstraint(Sketcher.Constraint("Perpendicular", 2, 4))
sketch10.addConstraint(Sketcher.Constraint("Perpendicular", 4, 6))
sketch10.addConstraint(Sketcher.Constraint("Horizontal", 3, 1, 4, 1))
sketch10.addConstraint(Sketcher.Constraint("Horizontal", 2, 1, 5, 1))
sketch10.addConstraint(Sketcher.Constraint("Horizontal", 1, 1, 6, 1))
sketch10.addConstraint(Sketcher.Constraint("Vertical", 1, 1, 2, 1))
sketch10.addConstraint(Sketcher.Constraint("Radius", 1, 3.0))
sketch10.addConstraint(Sketcher.Constraint("DistanceY", 1, 3, 3, 3, 31.0))
sketch10.addConstraint(Sketcher.Constraint("DistanceX", 3, 3, 5, 3, 31.0))
sketch10.addConstraint(Sketcher.Constraint("DistanceX", 0, 1, 1, 1, 1.446271))
pocket7 = doc.addObject("PartDesign::Pocket", "Pocket006")
body.addObject(pocket7)
pocket7.Profile = sketch10
pocket7.Length = 0.12

# Sketch on XY plane
sketch11 = doc.addObject("Sketcher::SketchObject", "Sketch010")
body.addObject(sketch11)
sketch11.AttachmentSupport = (doc.XY_Plane, [""])
sketch11.MapMode = "FlatFace"
sketch11.AttachmentOffset = App.Placement(Vector(0, 0, -21), App.Rotation())
sketch11.addGeometry(Part.LineSegment(Vector(4, 11, 0), Vector(4, 2, 0)), False)
sketch11.addGeometry(Part.LineSegment(Vector(4, 2, 0), Vector(-4, 2, 0)), False)
sketch11.addGeometry(Part.LineSegment(Vector(-4, 2, 0), Vector(-4, 11, 0)), False)
sketch11.addGeometry(Part.LineSegment(Vector(-4, 11, 0), Vector(4, 11, 0)), False)
sketch11.addConstraint(Sketcher.Constraint("Coincident", 0, 2, 1, 1))
sketch11.addConstraint(Sketcher.Constraint("Coincident", 1, 2, 2, 1))
sketch11.addConstraint(Sketcher.Constraint("Coincident", 2, 2, 3, 1))
sketch11.addConstraint(Sketcher.Constraint("Coincident", 3, 2, 0, 1))
sketch11.addConstraint(Sketcher.Constraint("Vertical", 0))
sketch11.addConstraint(Sketcher.Constraint("Horizontal", 1))
sketch11.addConstraint(Sketcher.Constraint("Vertical", 2))
sketch11.addConstraint(Sketcher.Constraint("Horizontal", 3))
sketch11.addConstraint(Sketcher.Constraint("DistanceX", 1, 2, 1, 1, 8.0))
sketch11.addConstraint(Sketcher.Constraint("DistanceY", 0, 2, 0, 1, 8.3))
sketch11.addConstraint(Sketcher.Constraint("DistanceX", -1, 1, 0, 2, 4.0))
sketch11.addConstraint(Sketcher.Constraint("DistanceY", -1, 1, 0, 2, 2.5))
pocket8 = doc.addObject("PartDesign::Pocket", "Pocket007")
body.addObject(pocket8)
pocket8.Profile = sketch11
pocket8.Length = 1.9
pocket8.Reversed = True
doc.recompute()

fillet = doc.addObject("PartDesign::Fillet", "Fillet")
body.addObject(fillet)
fillet.Base = (pocket8, edges_at(pocket8, [
    (-10.6, 2.5, 0),
    (-10.6, 6.75, 0),
    (-8, 6.75, 0),
    (-18.5, 0, 15.5),
    (12.5, 0, 15.5),
    (12.5, 0, -15.5),
    (-18.5, 0, -15.5),
]))
fillet.Radius = 0.1
doc.recompute()

fillet2 = doc.addObject("PartDesign::Fillet", "Fillet001")
body.addObject(fillet2)
fillet2.Base = (fillet, edges_at(fillet, [
    (-21, 0, 0),
    (-16.901, 6.25, -21),
    (-21, 6.25, -16.901),
    (-18.95, 0, -18.95),
    (0, 0, -21),
    (21, 6.25, -16.901),
    (16.901, 6.25, -21),
    (18.95, 0, -18.95),
    (0, 0, 21),
    (-16.901, 6.25, 21),
    (-21, 6.25, 16.901),
    (-18.95, 0, 18.95),
    (21, 0, 0),
    (16.901, 6.25, 21),
    (21, 6.25, 16.901),
    (18.95, 0, 18.95),
]))
fillet2.Radius = 0.5

doc.recompute()
